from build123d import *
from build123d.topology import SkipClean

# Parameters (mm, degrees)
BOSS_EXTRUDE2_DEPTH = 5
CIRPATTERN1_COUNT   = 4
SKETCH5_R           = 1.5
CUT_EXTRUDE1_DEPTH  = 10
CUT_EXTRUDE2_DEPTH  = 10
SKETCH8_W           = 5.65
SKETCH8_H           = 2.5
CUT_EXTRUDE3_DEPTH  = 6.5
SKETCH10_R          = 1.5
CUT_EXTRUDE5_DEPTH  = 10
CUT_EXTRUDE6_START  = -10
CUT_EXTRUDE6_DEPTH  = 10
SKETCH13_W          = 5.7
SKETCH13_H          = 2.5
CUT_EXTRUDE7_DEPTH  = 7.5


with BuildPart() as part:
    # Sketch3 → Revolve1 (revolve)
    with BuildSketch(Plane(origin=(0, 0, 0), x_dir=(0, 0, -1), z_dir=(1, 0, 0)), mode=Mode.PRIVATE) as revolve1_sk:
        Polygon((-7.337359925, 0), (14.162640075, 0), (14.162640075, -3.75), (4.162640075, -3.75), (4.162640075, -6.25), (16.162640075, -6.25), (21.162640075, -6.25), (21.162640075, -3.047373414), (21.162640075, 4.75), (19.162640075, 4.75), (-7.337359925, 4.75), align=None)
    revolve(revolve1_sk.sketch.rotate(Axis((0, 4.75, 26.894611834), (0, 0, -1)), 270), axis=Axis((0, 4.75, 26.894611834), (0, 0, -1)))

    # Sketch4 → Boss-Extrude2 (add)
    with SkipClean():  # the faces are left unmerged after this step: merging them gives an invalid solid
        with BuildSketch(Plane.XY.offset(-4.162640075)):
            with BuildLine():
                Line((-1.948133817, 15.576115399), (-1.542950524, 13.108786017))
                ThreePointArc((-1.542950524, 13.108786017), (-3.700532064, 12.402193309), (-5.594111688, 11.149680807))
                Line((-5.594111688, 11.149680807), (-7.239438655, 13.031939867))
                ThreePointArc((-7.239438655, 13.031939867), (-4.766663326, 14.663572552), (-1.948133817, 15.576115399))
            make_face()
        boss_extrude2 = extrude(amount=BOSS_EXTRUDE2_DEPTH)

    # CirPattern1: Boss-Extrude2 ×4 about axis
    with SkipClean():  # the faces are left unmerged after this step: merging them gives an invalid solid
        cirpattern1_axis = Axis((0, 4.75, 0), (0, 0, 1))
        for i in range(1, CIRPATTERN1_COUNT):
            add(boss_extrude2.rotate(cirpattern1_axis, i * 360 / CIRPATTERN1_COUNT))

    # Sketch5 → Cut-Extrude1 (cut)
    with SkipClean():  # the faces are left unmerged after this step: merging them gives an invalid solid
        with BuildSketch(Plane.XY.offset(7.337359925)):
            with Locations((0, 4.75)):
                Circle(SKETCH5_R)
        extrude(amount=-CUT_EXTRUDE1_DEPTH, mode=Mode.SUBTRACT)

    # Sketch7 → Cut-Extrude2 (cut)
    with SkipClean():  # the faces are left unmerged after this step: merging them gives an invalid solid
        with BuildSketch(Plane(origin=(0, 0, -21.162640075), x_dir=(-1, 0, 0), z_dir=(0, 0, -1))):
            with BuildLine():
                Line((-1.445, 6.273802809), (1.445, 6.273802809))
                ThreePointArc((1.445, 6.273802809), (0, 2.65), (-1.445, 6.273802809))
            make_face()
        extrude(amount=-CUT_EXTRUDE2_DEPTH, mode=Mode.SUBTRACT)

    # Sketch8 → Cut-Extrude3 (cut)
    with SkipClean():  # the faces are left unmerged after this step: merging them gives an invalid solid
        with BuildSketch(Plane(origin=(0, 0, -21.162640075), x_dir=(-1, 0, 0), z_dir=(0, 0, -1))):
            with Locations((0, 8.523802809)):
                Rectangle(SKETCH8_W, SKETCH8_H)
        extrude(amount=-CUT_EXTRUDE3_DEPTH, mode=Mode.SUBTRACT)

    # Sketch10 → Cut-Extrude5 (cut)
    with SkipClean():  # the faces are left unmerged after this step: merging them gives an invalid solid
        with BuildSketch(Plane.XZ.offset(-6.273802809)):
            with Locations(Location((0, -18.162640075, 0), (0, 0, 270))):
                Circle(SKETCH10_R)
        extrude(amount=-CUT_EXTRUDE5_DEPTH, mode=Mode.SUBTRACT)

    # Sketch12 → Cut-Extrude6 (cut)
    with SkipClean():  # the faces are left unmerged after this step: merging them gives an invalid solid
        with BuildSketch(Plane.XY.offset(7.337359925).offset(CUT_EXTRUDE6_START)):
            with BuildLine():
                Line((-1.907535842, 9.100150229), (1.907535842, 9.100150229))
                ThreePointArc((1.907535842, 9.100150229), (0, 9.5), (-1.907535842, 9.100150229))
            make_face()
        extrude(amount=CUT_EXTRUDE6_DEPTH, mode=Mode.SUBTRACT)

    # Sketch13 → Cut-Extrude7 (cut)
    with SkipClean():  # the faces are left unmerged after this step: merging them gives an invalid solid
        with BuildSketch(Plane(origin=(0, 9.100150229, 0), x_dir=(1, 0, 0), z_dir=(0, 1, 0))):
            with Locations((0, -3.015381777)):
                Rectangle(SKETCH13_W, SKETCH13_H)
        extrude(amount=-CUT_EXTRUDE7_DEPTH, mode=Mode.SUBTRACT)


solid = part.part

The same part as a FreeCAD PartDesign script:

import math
import FreeCAD as App
import Part
import Sketcher

V = App.Vector

doc = App.newDocument("Part")
body = doc.addObject("PartDesign::Body", "Body")

# Sketch on YZ plane
sketch1 = body.newObject("Sketcher::SketchObject", "Sketch")
sketch1.AttachmentSupport = (doc.getObject("YZ_Plane"), [""])
sketch1.MapMode = "FlatFace"
sketch1.addGeometry([
    Part.LineSegment(V(0, 7.3, 0), V(0, -14.2, 0)),  # 0
    Part.LineSegment(V(0, -14.2, 0), V(-3.8, -14.2, 0)),  # 1
    Part.LineSegment(V(-3.8, -14.2, 0), V(-3.8, -4.2, 0)),  # 2
    Part.LineSegment(V(-3.8, -4.2, 0), V(-6.2, -4.2, 0)),  # 3
    Part.LineSegment(V(-6.2, -4.2, 0), V(-6.2, -21.2, 0)),  # 4
    Part.LineSegment(V(-6.2, -21.2, 0), V(4.8, -21.2, 0)),  # 5
    Part.LineSegment(V(4.8, -21.2, 0), V(4.8, 7.3, 0)),  # 6
    Part.LineSegment(V(4.8, 7.3, 0), V(0, 7.3, 0)),  # 7
], False)
sketch1.addGeometry(Part.LineSegment(V(4.8, 7.3, 0), V(4.8, -21.2, 0)), True)  # axis
sketch1.addConstraint([
    Sketcher.Constraint("Coincident", 0, 2, 1, 1),
    Sketcher.Constraint("Coincident", 1, 2, 2, 1),
    Sketcher.Constraint("Coincident", 2, 2, 3, 1),
    Sketcher.Constraint("Coincident", 3, 2, 4, 1),
    Sketcher.Constraint("Coincident", 4, 2, 5, 1),
    Sketcher.Constraint("Coincident", 5, 2, 6, 1),
    Sketcher.Constraint("Coincident", 6, 2, 7, 1),
    Sketcher.Constraint("Coincident", 7, 2, 0, 1),
    Sketcher.Constraint("Vertical", 0),
    Sketcher.Constraint("Horizontal", 1),
    Sketcher.Constraint("Vertical", 2),
    Sketcher.Constraint("Horizontal", 3),
    Sketcher.Constraint("Vertical", 4),
    Sketcher.Constraint("Horizontal", 5),
    Sketcher.Constraint("Vertical", 6),
    Sketcher.Constraint("Horizontal", 7),
    Sketcher.Constraint("Vertical", 8),
    Sketcher.Constraint("Coincident", 8, 1, 6, 2),
    Sketcher.Constraint("PointOnObject", 0, 2, -2),
    Sketcher.Constraint("Horizontal", 4, 2, 8, 2),
    Sketcher.Constraint("DistanceX", 5, 1, 5, 2, 11.0),
    Sketcher.Constraint("DistanceY", 2, 1, 2, 2, 10.0),
    Sketcher.Constraint("DistanceY", 4, 2, 4, 1, 17.0),
    Sketcher.Constraint("DistanceX", 3, 2, 3, 1, 2.5),
    Sketcher.Constraint("DistanceY", 0, 2, 0, 1, 21.5),
    Sketcher.Constraint("DistanceX", 1, 2, 1, 1, 3.75),
    Sketcher.Constraint("DistanceY", 0, 2, -1, 1, 14.16264),
])
revolution = body.newObject("PartDesign::Revolution", "Revolution")
revolution.Profile = sketch1
revolution.ReferenceAxis = (sketch1, ["Axis0"])
revolution.Angle = 360

# Sketch on XY plane
sketch2 = body.newObject("Sketcher::SketchObject", "Sketch001")
sketch2.AttachmentSupport = (doc.getObject("XY_Plane"), [""])
sketch2.MapMode = "FlatFace"
sketch2.AttachmentOffset = App.Placement(V(0, 0, -4.16264), App.Rotation())
sketch2.addGeometry([
    Part.LineSegment(V(-1.5, 13.1, 0), V(-1.9, 15.6, 0)),
    Part.ArcOfCircle(Part.Circle(V(0, 4.8, 0), V(0, 0, 1), 11), math.radians(100), math.radians(131)),
    Part.LineSegment(V(-7.2, 13, 0), V(-5.6, 11.1, 0)),
    Part.ArcOfCircle(Part.Circle(V(0, 4.7, 0), V(0, 0, 1), 8.5), math.radians(100), math.radians(131)),
], False)
sketch2.addConstraint([
    Sketcher.Constraint("Coincident", 0, 2, 1, 1),
    Sketcher.Constraint("Coincident", 1, 2, 2, 1),
    Sketcher.Constraint("Coincident", 2, 2, 3, 2),
    Sketcher.Constraint("Coincident", 3, 1, 0, 1),
    Sketcher.Constraint("Coincident", 3, 3, 1, 3),
    Sketcher.Constraint("PointOnObject", 1, 3, -2),
    Sketcher.Constraint("Radius", 1, 11.0),
    Sketcher.Constraint("Radius", 3, 8.5),
    Sketcher.Constraint("DistanceY", -1, 1, 1, 3, 4.75),
    Sketcher.Constraint("DistanceX", 1, 2, -1, 1, 7.239439),
    Sketcher.Constraint("DistanceX", 2, 2, -1, 1, 5.594112),
    Sketcher.Constraint("DistanceX", 3, 1, -1, 1, 1.542951),
    Sketcher.Constraint("DistanceY", 3, 1, 0, 2, 2.467329),
])
pad1 = body.newObject("PartDesign::Pad", "Pad")
pad1.Profile = sketch2
pad1.Length = 5
doc.recompute()

datumline = body.newObject("PartDesign::Line", "DatumLine")
datumline.Placement = App.Placement(V(0, 4.75, 0), App.Rotation(V(0, 0, 1), V(0, 0, 1)))
polarpattern = body.newObject("PartDesign::PolarPattern", "PolarPattern")
polarpattern.Originals = [pad1]
polarpattern.Axis = (datumline, [""])
polarpattern.Angle = 360
polarpattern.Occurrences = 4
body.Tip = polarpattern

# Sketch on XY plane
sketch3 = body.newObject("Sketcher::SketchObject", "Sketch002")
sketch3.AttachmentSupport = (doc.getObject("XY_Plane"), [""])
sketch3.MapMode = "FlatFace"
sketch3.AttachmentOffset = App.Placement(V(0, 0, 7.33736), App.Rotation())
sketch3.addGeometry(Part.Circle(V(0, 4.8, 0), V(0, 0, 1), 1.5), False)
sketch3.addConstraint([
    Sketcher.Constraint("PointOnObject", 0, 3, -2),
    Sketcher.Constraint("Diameter", 0, 3.0),
    Sketcher.Constraint("DistanceY", -1, 1, 0, 3, 4.75),
])
pocket1 = body.newObject("PartDesign::Pocket", "Pocket")
pocket1.Profile = sketch3
pocket1.Length = 10

# Sketch on XY plane
sketch4 = body.newObject("Sketcher::SketchObject", "Sketch003")
sketch4.AttachmentSupport = (doc.getObject("XY_Plane"), [""])
sketch4.MapMode = "FlatFace"
sketch4.AttachmentOffset = App.Placement(V(0, 0, -21.16264), App.Rotation())
sketch4.addGeometry([
    Part.LineSegment(V(-1.4, 6.3, 0), V(1.4, 6.3, 0)),
    Part.ArcOfCircle(Part.Circle(V(0, 4.8, 0), V(0, 0, 1), 2.1), math.radians(133), math.radians(407)),
], False)
sketch4.addConstraint([
    Sketcher.Constraint("Coincident", 0, 1, 1, 1),
    Sketcher.Constraint("Coincident", 1, 2, 0, 2),
    Sketcher.Constraint("Horizontal", 0),
    Sketcher.Constraint("PointOnObject", 1, 3, -2),
    Sketcher.Constraint("Radius", 1, 2.1),
    Sketcher.Constraint("DistanceX", 0, 1, 0, 2, 2.89),
    Sketcher.Constraint("DistanceY", -1, 1, 1, 3, 4.75),
])
pocket2 = body.newObject("PartDesign::Pocket", "Pocket001")
pocket2.Profile = sketch4
pocket2.Length = 10
pocket2.Reversed = True

# Sketch on XY plane
sketch5 = body.newObject("Sketcher::SketchObject", "Sketch004")
sketch5.AttachmentSupport = (doc.getObject("XY_Plane"), [""])
sketch5.MapMode = "FlatFace"
sketch5.AttachmentOffset = App.Placement(V(0, 0, -21.16264), App.Rotation())
sketch5.addGeometry([
    Part.LineSegment(V(2.8, 9.8, 0), V(2.8, 7.3, 0)),
    Part.LineSegment(V(2.8, 7.3, 0), V(-2.8, 7.3, 0)),
    Part.LineSegment(V(-2.8, 7.3, 0), V(-2.8, 9.8, 0)),
    Part.LineSegment(V(-2.8, 9.8, 0), V(2.8, 9.8, 0)),
], False)
sketch5.addConstraint([
    Sketcher.Constraint("Coincident", 0, 2, 1, 1),
    Sketcher.Constraint("Coincident", 1, 2, 2, 1),
    Sketcher.Constraint("Coincident", 2, 2, 3, 1),
    Sketcher.Constraint("Coincident", 3, 2, 0, 1),
    Sketcher.Constraint("Vertical", 0),
    Sketcher.Constraint("Horizontal", 1),
    Sketcher.Constraint("Vertical", 2),
    Sketcher.Constraint("Horizontal", 3),
    Sketcher.Constraint("DistanceY", 0, 2, 0, 1, 2.5),
    Sketcher.Constraint("DistanceX", 1, 2, 1, 1, 5.65),
    Sketcher.Constraint("DistanceX", -1, 1, 0, 2, 2.825),
    Sketcher.Constraint("DistanceY", -1, 1, 0, 2, 7.273803),
])
pocket3 = body.newObject("PartDesign::Pocket", "Pocket002")
pocket3.Profile = sketch5
pocket3.Length = 6.5
pocket3.Reversed = True

# Sketch on XZ plane
sketch6 = body.newObject("Sketcher::SketchObject", "Sketch005")
sketch6.AttachmentSupport = (doc.getObject("XZ_Plane"), [""])
sketch6.MapMode = "FlatFace"
sketch6.AttachmentOffset = App.Placement(V(0, 0, -6.273803), App.Rotation())
sketch6.addGeometry(Part.Circle(V(0, -18.2, 0), V(0, 0, 1), 1.5), False)
sketch6.addConstraint([
    Sketcher.Constraint("PointOnObject", 0, 3, -2),
    Sketcher.Constraint("Diameter", 0, 3.0),
    Sketcher.Constraint("DistanceY", 0, 3, -1, 1, 18.16264),
])
pocket4 = body.newObject("PartDesign::Pocket", "Pocket003")
pocket4.Profile = sketch6
pocket4.Length = 10

# Sketch on XY plane
sketch7 = body.newObject("Sketcher::SketchObject", "Sketch006")
sketch7.AttachmentSupport = (doc.getObject("XY_Plane"), [""])
sketch7.MapMode = "FlatFace"
sketch7.AttachmentOffset = App.Placement(V(0, 0, -2.66264), App.Rotation())
sketch7.addGeometry([
    Part.LineSegment(V(-1.9, 9.1, 0), V(1.9, 9.1, 0)),
    Part.ArcOfCircle(Part.Circle(V(0, 4.7, 0), V(0, 0, 1), 4.8), math.radians(66), math.radians(114)),
], False)
sketch7.addConstraint([
    Sketcher.Constraint("Coincident", 0, 1, 1, 2),
    Sketcher.Constraint("Coincident", 1, 1, 0, 2),
    Sketcher.Constraint("Horizontal", 0),
    Sketcher.Constraint("PointOnObject", 1, 3, -2),
    Sketcher.Constraint("Radius", 1, 4.75),
    Sketcher.Constraint("DistanceY", -1, 1, 1, 3, 4.75),
    Sketcher.Constraint("DistanceX", 0, 1, 0, 2, 3.815072),
])
pocket5 = body.newObject("PartDesign::Pocket", "Pocket004")
pocket5.Profile = sketch7
pocket5.Length = 10
pocket5.Reversed = True

# Sketch on XZ plane
sketch8 = body.newObject("Sketcher::SketchObject", "Sketch007")
sketch8.AttachmentSupport = (doc.getObject("XZ_Plane"), [""])
sketch8.MapMode = "FlatFace"
sketch8.AttachmentOffset = App.Placement(V(0, 0, -9.10015), App.Rotation())
sketch8.addGeometry([
    Part.LineSegment(V(-2.9, 1.8, 0), V(-2.9, 4.3, 0)),
    Part.LineSegment(V(-2.9, 4.3, 0), V(2.9, 4.3, 0)),
    Part.LineSegment(V(2.9, 4.3, 0), V(2.9, 1.8, 0)),
    Part.LineSegment(V(2.9, 1.8, 0), V(-2.9, 1.8, 0)),
], False)
sketch8.addConstraint([
    Sketcher.Constraint("Coincident", 0, 2, 1, 1),
    Sketcher.Constraint("Coincident", 1, 2, 2, 1),
    Sketcher.Constraint("Coincident", 2, 2, 3, 1),
    Sketcher.Constraint("Coincident", 3, 2, 0, 1),
    Sketcher.Constraint("Vertical", 0),
    Sketcher.Constraint("Horizontal", 1),
    Sketcher.Constraint("Vertical", 2),
    Sketcher.Constraint("Horizontal", 3),
    Sketcher.Constraint("DistanceX", 1, 1, 1, 2, 5.7),
    Sketcher.Constraint("DistanceY", 0, 1, 0, 2, 2.5),
    Sketcher.Constraint("DistanceX", 0, 2, -1, 1, 2.85),
    Sketcher.Constraint("DistanceY", -1, 1, 0, 2, 4.265382),
])
pocket6 = body.newObject("PartDesign::Pocket", "Pocket005")
pocket6.Profile = sketch8
pocket6.Length = 7.5
pocket6.Reversed = True

doc.recompute()
